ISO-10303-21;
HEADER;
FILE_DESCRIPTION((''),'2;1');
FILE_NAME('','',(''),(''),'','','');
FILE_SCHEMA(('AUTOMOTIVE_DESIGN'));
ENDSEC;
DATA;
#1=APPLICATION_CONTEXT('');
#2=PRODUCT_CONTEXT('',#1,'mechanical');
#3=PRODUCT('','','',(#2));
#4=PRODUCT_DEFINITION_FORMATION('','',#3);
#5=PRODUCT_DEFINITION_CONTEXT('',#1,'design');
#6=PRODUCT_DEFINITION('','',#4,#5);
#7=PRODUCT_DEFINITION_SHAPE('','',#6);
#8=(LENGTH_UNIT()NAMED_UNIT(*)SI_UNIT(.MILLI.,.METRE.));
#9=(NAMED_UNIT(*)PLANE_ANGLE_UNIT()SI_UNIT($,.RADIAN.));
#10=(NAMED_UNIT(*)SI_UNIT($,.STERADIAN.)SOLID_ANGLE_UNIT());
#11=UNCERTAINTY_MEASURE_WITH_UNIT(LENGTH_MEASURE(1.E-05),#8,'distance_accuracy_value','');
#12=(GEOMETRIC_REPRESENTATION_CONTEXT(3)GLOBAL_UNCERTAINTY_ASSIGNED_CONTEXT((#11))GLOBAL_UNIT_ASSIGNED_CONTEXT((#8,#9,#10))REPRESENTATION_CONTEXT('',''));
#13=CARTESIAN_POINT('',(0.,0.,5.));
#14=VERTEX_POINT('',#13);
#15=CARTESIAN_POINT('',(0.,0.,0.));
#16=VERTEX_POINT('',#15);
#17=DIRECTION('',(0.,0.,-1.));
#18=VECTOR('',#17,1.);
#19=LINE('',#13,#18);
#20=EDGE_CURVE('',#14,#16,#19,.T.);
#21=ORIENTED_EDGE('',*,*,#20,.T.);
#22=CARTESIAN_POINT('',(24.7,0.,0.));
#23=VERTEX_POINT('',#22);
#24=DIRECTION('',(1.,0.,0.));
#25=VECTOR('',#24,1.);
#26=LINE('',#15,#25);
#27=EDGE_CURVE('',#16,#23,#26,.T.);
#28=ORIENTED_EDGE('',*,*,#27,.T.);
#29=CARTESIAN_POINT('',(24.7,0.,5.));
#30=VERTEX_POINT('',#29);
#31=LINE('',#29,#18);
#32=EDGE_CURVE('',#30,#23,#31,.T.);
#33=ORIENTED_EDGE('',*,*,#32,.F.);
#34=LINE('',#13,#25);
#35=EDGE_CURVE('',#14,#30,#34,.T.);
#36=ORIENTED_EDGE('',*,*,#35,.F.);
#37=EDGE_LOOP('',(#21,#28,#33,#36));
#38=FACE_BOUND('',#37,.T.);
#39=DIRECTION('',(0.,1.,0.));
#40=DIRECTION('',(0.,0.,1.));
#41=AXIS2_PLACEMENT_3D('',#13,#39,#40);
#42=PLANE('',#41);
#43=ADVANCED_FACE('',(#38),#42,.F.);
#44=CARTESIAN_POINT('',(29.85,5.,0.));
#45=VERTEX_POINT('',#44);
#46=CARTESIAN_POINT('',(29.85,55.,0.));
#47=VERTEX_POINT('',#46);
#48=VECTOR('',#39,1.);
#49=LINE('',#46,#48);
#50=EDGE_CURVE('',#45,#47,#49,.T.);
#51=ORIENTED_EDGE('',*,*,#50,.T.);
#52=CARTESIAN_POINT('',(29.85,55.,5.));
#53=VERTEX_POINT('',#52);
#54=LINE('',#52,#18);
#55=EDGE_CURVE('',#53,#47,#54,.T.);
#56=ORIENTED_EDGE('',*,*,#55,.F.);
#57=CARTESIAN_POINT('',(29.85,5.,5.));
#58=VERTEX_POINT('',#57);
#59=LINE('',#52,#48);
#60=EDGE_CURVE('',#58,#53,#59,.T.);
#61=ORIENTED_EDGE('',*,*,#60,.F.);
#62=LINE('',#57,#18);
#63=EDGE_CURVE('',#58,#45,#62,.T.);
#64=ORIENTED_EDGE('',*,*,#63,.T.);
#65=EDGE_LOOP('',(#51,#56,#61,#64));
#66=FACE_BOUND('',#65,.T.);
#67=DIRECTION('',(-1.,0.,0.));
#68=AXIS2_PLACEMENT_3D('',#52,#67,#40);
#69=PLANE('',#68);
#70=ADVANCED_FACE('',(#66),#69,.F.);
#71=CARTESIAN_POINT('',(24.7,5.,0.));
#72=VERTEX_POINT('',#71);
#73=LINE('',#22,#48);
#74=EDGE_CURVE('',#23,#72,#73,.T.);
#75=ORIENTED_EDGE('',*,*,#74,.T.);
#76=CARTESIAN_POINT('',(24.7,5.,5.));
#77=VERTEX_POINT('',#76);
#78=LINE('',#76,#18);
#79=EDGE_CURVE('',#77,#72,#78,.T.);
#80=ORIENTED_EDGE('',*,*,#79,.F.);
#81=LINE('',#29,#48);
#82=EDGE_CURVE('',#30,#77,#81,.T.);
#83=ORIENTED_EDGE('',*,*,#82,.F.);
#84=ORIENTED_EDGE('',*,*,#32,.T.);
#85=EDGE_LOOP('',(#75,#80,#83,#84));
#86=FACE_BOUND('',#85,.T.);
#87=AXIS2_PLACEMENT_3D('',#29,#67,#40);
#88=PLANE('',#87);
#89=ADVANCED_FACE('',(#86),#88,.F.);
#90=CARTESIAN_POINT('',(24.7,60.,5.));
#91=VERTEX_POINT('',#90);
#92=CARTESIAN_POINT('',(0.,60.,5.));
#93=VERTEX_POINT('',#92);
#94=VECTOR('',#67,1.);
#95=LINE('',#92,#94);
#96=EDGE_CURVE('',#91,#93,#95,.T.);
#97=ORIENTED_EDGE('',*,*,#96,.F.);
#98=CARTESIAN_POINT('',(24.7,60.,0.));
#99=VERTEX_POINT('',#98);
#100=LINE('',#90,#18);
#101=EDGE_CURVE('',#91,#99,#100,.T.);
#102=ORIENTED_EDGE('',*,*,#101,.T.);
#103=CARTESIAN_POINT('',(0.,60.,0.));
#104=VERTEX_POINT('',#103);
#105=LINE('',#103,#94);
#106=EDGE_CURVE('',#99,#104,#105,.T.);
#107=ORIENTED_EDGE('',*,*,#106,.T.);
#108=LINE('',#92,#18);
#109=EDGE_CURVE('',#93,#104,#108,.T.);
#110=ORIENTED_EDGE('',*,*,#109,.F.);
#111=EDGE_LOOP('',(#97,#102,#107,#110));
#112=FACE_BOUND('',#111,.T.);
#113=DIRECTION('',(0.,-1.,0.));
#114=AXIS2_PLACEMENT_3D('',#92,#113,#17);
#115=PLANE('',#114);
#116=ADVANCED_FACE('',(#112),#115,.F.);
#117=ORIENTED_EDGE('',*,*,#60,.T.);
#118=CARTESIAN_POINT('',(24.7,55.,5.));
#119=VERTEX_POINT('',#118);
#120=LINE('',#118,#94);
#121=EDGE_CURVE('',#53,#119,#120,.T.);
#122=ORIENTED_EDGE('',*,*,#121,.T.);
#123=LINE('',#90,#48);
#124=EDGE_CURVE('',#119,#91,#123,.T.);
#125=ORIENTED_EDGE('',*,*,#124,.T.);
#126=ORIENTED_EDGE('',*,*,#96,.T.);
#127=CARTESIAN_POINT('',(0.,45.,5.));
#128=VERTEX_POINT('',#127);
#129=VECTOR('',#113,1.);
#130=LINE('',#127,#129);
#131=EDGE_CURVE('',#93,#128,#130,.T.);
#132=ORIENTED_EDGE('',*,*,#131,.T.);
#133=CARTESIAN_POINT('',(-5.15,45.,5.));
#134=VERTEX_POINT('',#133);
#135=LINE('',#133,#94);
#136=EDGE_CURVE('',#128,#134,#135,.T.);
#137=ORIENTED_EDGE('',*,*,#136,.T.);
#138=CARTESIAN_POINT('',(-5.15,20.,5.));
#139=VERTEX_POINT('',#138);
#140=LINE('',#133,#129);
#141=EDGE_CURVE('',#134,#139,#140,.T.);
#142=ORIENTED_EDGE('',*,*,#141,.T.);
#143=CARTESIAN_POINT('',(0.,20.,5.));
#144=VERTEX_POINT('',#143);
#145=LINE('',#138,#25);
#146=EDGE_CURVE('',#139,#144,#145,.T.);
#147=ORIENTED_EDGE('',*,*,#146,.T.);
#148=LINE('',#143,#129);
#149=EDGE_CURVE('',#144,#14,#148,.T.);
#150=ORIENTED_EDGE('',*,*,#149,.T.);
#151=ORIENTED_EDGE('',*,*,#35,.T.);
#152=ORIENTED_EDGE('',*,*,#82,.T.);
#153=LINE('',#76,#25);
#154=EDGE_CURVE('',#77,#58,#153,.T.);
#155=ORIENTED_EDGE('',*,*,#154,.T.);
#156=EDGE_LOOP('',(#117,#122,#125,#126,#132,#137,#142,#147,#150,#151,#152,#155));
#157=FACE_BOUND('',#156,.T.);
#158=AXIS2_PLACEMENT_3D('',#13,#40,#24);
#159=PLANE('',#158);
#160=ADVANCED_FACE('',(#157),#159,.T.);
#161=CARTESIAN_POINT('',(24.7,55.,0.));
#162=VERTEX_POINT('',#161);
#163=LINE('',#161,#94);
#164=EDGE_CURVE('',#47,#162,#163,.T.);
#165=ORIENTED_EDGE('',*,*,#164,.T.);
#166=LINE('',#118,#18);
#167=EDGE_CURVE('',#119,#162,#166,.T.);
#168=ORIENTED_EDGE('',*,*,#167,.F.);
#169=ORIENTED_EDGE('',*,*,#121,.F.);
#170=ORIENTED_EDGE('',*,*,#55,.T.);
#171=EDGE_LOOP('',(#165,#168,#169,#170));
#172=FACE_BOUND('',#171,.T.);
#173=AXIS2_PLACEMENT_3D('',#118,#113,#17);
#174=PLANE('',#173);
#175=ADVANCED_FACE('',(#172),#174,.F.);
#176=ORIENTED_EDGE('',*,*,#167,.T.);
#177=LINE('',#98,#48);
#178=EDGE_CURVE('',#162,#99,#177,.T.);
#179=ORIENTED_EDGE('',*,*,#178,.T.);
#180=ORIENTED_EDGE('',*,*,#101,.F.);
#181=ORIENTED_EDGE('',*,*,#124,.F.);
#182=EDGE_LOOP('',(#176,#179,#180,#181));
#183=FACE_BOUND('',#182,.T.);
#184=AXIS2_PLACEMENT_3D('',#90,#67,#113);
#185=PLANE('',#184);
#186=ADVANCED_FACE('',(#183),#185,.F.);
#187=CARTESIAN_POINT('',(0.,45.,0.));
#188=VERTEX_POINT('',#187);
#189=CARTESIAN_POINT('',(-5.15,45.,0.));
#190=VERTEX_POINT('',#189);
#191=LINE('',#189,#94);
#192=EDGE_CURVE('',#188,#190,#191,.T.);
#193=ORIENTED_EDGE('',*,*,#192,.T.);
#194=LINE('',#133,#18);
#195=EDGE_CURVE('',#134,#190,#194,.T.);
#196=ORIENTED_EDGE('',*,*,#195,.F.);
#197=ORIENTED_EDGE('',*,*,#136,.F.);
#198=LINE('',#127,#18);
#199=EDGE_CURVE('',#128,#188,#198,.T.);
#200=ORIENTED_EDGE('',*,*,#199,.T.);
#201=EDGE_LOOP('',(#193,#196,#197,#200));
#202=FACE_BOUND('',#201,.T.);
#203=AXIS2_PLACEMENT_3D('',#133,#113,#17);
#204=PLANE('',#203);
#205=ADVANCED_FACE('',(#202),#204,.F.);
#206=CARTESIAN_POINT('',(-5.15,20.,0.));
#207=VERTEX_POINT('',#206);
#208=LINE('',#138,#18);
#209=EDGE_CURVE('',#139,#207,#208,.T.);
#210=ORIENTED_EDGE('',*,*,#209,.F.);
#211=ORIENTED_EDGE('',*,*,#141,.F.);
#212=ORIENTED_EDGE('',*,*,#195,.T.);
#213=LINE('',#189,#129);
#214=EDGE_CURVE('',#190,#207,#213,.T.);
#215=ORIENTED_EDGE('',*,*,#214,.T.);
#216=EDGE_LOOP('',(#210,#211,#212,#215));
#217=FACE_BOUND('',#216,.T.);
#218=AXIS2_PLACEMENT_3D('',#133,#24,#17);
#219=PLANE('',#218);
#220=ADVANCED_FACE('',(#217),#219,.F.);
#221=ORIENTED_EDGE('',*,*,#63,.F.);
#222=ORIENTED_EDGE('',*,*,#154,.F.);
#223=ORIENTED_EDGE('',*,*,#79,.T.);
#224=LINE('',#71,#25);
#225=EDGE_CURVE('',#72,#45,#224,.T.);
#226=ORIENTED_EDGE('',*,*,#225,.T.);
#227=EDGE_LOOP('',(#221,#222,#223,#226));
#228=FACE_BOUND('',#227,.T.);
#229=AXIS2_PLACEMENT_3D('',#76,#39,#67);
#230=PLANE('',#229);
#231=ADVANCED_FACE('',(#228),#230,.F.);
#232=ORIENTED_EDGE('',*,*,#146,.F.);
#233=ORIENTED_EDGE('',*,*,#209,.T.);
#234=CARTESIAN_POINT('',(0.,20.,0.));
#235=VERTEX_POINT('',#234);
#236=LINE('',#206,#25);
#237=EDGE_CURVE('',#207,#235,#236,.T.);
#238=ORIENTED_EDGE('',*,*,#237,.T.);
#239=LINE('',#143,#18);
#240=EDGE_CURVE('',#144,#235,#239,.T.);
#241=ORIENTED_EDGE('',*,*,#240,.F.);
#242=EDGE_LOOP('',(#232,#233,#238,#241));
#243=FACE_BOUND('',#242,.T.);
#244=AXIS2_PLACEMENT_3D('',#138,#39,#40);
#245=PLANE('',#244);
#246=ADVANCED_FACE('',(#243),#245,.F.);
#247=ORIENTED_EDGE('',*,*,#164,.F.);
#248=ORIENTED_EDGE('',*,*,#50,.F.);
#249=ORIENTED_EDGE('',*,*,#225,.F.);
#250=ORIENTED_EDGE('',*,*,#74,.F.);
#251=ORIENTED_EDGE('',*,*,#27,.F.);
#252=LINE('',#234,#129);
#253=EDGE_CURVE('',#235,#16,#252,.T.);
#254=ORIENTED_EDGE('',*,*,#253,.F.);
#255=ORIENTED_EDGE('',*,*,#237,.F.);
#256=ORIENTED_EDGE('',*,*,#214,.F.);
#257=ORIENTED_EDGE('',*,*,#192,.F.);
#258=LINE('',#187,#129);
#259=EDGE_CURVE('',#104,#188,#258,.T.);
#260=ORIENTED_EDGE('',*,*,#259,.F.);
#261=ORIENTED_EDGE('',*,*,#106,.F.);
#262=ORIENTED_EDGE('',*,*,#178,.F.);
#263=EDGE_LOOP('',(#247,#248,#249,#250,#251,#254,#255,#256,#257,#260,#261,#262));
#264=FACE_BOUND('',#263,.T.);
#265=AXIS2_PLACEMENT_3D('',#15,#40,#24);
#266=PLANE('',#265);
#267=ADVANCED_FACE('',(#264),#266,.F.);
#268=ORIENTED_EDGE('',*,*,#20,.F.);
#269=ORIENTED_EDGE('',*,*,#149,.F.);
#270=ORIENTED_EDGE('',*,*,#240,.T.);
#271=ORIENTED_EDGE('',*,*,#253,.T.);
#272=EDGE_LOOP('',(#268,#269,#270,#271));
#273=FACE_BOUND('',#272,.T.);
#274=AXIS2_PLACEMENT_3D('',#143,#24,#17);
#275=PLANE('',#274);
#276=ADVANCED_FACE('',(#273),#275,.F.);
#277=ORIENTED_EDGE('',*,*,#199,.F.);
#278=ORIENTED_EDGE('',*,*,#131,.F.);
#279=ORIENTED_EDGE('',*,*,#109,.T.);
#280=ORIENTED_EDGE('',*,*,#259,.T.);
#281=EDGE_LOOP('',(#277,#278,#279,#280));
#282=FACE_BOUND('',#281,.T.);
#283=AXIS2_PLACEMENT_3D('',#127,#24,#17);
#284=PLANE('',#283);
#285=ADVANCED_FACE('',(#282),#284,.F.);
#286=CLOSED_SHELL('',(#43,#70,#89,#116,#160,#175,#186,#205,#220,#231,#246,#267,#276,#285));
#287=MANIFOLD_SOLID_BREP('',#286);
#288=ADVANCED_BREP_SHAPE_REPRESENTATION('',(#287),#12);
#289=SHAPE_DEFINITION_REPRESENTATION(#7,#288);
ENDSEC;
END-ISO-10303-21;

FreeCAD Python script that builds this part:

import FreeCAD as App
import Part
import Sketcher

V = App.Vector

doc = App.newDocument("Part")
params = doc.addObject("Spreadsheet::Sheet", "Params")
for row, (alias, value) in enumerate([
    ("sketch1_height", "25 mm"),
    ("sketch1_height2", "20 mm"),
    ("sketch1_height3", "5 mm"),
    ("sketch1_height4", "50 mm"),
    ("sketch1_width", "24.7 mm"),
    ("pad1_length", "5 mm"),
], start=1):
    params.set(f"A{row}", alias)
    params.set(f"B{row}", "=" + value)
    params.setAlias(f"B{row}", alias)

body = doc.addObject("PartDesign::Body", "Body")

# Sketch on XY plane
sketch1 = body.newObject("Sketcher::SketchObject", "Sketch")
sketch1.AttachmentSupport = (doc.getObject("XY_Plane"), [""])
sketch1.MapMode = "FlatFace"
sketch1.addGeometry([
    Part.LineSegment(V(0, 45, 0), V(-5.15, 45, 0)),  # 0
    Part.LineSegment(V(-5.15, 45, 0), V(-5.15, 20, 0)),  # 1
    Part.LineSegment(V(-5.15, 20, 0), V(0, 20, 0)),  # 2
    Part.LineSegment(V(0, 20, 0), V(0, 0, 0)),  # 3
    Part.LineSegment(V(0, 0, 0), V(24.7, 0, 0)),  # 4
    Part.LineSegment(V(24.7, 0, 0), V(24.7, 5, 0)),  # 5
    Part.LineSegment(V(24.7, 5, 0), V(29.85, 5, 0)),  # 6
    Part.LineSegment(V(29.85, 5, 0), V(29.85, 55, 0)),  # 7
    Part.LineSegment(V(29.85, 55, 0), V(24.7, 55, 0)),  # 8
    Part.LineSegment(V(24.7, 55, 0), V(24.7, 60, 0)),  # 9
    Part.LineSegment(V(24.7, 60, 0), V(0, 60, 0)),  # 10
    Part.LineSegment(V(0, 60, 0), V(0, 45, 0)),  # 11
], False)
sketch1.addConstraint([
    Sketcher.Constraint("Coincident", 0, 2, 1, 1),
    Sketcher.Constraint("Coincident", 1, 2, 2, 1),
    Sketcher.Constraint("Coincident", 2, 2, 3, 1),
    Sketcher.Constraint("Coincident", 3, 2, 4, 1),
    Sketcher.Constraint("Coincident", 4, 2, 5, 1),
    Sketcher.Constraint("Coincident", 5, 2, 6, 1),
    Sketcher.Constraint("Coincident", 6, 2, 7, 1),
    Sketcher.Constraint("Coincident", 7, 2, 8, 1),
    Sketcher.Constraint("Coincident", 8, 2, 9, 1),
    Sketcher.Constraint("Coincident", 9, 2, 10, 1),
    Sketcher.Constraint("Coincident", 10, 2, 11, 1),
    Sketcher.Constraint("Coincident", 11, 2, 0, 1),
    Sketcher.Constraint("Horizontal", 0),
    Sketcher.Constraint("Vertical", 1),
    Sketcher.Constraint("Horizontal", 2),
    Sketcher.Constraint("Vertical", 3),
    Sketcher.Constraint("Horizontal", 4),
    Sketcher.Constraint("Vertical", 5),
    Sketcher.Constraint("Horizontal", 6),
    Sketcher.Constraint("Vertical", 7),
    Sketcher.Constraint("Horizontal", 8),
    Sketcher.Constraint("Vertical", 9),
    Sketcher.Constraint("Horizontal", 10),
    Sketcher.Constraint("Vertical", 11),
    Sketcher.Constraint("Coincident", 3, 2, -1, 1),
    Sketcher.Constraint("PointOnObject", 10, 2, -2),
    Sketcher.Constraint("Vertical", 5, 2, 8, 2),
    Sketcher.Constraint("Equal", 2, 6),
    Sketcher.Constraint("Equal", 5, 9),
    Sketcher.Constraint("DistanceY", 1, 2, 1, 1, 25.0),
    Sketcher.Constraint("DistanceY", 3, 2, 3, 1, 20.0),
    Sketcher.Constraint("DistanceY", 5, 1, 5, 2, 5.0),
    Sketcher.Constraint("DistanceY", 7, 1, 7, 2, 50.0),
    Sketcher.Constraint("DistanceX", 4, 1, 4, 2, 24.7),
    Sketcher.Constraint("DistanceX", 1, 2, 6, 2, 35.0),
])
sketch1.setExpression("Constraints[29]", "Params.sketch1_height")
sketch1.setExpression("Constraints[30]", "Params.sketch1_height2")
sketch1.setExpression("Constraints[31]", "Params.sketch1_height3")
sketch1.setExpression("Constraints[32]", "Params.sketch1_height4")
sketch1.setExpression("Constraints[33]", "Params.sketch1_width")
pad1 = body.newObject("PartDesign::Pad", "Pad")
pad1.Profile = sketch1
pad1.setExpression("Length", "Params.pad1_length")

doc.recompute()
